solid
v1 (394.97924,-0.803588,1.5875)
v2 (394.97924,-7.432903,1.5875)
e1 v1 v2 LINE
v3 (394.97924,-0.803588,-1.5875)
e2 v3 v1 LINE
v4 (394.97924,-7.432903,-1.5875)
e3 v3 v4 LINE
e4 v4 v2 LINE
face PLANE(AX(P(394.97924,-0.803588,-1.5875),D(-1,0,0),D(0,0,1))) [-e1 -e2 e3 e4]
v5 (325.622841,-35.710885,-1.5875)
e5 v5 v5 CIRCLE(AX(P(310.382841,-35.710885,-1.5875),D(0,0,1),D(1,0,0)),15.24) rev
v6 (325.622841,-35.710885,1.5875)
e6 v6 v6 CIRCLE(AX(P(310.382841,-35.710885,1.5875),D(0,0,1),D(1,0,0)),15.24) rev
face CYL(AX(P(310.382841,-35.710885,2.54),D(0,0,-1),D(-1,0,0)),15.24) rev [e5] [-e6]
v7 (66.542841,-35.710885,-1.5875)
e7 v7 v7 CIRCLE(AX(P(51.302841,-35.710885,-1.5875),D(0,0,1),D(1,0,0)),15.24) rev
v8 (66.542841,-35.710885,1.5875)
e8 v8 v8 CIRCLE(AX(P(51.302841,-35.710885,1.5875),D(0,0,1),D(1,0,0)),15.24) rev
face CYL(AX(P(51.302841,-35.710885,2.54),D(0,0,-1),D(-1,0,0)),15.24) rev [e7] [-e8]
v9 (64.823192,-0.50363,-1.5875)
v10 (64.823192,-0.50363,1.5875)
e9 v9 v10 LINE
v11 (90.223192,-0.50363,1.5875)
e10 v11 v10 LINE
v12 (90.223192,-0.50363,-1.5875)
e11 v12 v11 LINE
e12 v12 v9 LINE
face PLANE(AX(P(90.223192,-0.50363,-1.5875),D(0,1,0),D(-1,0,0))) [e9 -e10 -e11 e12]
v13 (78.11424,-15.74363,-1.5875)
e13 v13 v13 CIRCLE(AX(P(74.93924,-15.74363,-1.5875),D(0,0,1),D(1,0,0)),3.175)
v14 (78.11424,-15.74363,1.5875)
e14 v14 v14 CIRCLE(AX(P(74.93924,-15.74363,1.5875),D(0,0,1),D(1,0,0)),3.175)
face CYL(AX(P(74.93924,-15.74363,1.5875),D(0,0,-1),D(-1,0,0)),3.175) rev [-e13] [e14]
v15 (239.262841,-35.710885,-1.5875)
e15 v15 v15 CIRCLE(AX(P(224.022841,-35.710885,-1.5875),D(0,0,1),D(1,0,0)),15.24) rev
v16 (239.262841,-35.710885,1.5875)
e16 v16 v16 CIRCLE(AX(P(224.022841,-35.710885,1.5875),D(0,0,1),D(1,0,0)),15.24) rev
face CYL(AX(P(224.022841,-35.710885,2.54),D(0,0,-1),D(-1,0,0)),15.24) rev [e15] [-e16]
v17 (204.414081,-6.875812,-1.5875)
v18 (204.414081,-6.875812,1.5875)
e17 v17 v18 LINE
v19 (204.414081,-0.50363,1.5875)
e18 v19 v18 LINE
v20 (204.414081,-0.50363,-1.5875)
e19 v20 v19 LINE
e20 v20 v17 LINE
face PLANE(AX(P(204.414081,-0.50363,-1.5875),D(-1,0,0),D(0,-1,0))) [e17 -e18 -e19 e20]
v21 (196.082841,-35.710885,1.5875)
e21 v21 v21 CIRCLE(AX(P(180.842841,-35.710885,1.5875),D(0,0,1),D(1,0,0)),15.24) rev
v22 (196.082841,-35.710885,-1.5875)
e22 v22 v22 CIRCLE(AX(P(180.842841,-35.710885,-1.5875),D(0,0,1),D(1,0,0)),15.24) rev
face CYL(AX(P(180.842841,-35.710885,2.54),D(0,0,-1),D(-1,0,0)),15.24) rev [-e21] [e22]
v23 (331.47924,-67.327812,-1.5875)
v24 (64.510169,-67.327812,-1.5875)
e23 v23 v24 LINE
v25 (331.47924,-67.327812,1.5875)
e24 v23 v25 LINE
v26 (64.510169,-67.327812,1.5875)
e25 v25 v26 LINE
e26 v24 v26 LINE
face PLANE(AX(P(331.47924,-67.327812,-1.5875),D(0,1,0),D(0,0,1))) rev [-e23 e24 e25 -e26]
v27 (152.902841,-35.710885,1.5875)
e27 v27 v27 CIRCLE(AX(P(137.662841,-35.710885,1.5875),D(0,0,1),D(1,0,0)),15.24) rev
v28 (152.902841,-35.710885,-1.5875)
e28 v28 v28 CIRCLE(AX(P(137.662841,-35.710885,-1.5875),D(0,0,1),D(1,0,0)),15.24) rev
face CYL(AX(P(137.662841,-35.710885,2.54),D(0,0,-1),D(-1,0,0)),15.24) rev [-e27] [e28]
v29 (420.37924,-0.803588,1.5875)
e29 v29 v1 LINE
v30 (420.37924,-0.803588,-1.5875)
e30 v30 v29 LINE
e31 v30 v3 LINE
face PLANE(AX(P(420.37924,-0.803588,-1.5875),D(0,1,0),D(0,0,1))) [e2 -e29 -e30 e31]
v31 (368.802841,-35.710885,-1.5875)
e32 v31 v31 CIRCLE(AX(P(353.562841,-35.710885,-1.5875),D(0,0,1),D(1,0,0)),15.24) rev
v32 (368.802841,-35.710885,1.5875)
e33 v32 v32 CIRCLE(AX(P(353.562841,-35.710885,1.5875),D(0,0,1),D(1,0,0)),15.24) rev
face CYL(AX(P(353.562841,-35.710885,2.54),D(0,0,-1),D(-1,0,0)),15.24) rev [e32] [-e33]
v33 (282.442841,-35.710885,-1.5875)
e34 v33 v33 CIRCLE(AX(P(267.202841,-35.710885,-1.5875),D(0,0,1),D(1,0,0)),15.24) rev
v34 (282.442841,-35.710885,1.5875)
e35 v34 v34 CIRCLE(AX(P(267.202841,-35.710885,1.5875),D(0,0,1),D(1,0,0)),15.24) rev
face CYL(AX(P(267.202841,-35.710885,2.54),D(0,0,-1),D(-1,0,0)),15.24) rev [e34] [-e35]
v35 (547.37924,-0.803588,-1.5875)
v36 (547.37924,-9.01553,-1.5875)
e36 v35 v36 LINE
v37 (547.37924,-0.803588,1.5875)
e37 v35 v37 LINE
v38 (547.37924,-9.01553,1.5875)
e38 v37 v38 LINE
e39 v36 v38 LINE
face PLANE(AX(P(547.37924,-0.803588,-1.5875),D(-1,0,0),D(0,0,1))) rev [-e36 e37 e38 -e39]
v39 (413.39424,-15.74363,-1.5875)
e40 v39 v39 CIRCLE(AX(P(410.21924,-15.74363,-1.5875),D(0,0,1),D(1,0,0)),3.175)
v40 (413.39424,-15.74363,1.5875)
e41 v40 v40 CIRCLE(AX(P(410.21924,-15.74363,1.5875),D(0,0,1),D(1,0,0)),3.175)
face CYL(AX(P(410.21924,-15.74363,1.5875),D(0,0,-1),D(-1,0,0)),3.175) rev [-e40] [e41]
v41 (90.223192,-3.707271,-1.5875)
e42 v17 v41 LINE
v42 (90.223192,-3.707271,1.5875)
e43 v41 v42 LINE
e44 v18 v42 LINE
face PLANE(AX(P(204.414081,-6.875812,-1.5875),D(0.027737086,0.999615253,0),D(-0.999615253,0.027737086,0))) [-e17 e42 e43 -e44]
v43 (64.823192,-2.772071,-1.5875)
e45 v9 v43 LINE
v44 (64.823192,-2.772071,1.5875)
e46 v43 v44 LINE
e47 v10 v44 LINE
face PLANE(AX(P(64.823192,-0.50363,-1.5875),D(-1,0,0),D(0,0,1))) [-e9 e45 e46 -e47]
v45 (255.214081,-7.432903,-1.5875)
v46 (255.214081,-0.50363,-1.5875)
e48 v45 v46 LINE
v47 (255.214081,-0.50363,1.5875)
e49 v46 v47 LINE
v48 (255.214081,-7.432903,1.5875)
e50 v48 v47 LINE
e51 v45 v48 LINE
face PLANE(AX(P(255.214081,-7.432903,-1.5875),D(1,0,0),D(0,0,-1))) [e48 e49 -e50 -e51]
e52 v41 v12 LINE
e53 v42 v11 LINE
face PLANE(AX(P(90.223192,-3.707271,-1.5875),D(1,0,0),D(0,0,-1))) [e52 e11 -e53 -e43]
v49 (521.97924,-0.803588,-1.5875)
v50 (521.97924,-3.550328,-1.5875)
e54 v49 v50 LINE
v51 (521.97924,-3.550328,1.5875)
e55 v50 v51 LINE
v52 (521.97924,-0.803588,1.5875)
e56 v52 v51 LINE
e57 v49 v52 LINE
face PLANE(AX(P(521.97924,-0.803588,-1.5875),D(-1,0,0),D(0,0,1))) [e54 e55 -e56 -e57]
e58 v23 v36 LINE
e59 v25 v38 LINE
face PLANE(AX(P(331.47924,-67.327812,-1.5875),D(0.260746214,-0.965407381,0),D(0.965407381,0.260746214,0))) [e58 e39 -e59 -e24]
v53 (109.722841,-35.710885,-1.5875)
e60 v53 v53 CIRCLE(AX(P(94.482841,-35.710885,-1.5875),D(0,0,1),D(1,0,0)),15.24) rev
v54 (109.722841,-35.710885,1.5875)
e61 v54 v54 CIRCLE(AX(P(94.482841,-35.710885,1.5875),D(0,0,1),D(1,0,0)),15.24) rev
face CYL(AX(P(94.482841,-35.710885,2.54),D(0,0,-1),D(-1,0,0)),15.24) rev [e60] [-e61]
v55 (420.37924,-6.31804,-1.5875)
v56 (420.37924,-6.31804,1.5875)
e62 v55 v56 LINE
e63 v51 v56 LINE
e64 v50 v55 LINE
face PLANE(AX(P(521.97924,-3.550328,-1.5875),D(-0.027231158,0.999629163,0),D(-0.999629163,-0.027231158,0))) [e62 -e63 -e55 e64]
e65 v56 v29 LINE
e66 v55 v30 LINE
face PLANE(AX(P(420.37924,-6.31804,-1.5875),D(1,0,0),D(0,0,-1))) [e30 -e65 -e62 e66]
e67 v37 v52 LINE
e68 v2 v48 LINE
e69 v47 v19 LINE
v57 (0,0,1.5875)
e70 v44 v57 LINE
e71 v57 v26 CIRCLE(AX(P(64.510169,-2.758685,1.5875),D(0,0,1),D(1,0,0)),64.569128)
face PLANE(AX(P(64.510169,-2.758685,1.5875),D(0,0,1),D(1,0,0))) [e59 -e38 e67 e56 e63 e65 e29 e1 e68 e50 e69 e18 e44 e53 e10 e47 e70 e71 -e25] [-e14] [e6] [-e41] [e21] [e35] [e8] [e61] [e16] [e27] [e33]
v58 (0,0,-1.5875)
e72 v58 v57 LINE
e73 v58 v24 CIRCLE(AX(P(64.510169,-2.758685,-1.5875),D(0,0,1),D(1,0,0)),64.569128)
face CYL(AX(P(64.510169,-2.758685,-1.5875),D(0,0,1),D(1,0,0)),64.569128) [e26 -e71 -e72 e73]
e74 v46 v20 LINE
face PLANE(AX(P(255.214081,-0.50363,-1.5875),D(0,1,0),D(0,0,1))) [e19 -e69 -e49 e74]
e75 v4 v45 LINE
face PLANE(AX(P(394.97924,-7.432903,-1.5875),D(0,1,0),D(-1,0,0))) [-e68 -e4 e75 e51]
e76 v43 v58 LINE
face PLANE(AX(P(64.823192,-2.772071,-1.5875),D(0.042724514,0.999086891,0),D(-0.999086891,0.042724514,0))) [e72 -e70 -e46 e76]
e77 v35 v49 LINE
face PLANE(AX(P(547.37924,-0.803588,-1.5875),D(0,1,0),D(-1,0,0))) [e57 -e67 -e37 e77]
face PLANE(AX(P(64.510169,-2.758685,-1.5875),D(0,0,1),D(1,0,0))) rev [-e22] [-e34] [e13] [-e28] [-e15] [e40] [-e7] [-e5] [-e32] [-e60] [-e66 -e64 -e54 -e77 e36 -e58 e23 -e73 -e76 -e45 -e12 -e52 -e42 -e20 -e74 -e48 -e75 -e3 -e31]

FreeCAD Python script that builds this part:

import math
import FreeCAD as App
import Part
import Sketcher
Q = App.Units.Quantity

doc = App.newDocument("Part")
params = doc.addObject("Spreadsheet::Sheet", "Params")
for row, (alias, value) in enumerate([
    ("sketch1_width", "1 in"),
    ("sketch1_width2", "2 in"),
    ("pad1_length", "0.0625 in"),
    ("pad1_length2", "0.0625 in"),
    ("sketch2_diameter", "0.25 in"),
    ("sketch3_diameter", "1.2 in"),
], start=1):
    params.set(f"A{row}", alias)
    params.set(f"B{row}", "=" + value)
    params.setAlias(f"B{row}", alias)

body = doc.addObject("PartDesign::Body", "Body")

# Sketch on XY plane
sketch1 = body.newObject("Sketcher::SketchObject", "Sketch")
sketch1.AttachmentSupport = (doc.getObject("XY_Plane"), [""])
sketch1.MapMode = "FlatFace"
sketch1.addGeometry(Part.LineSegment(App.Vector(331.5, -67.3, 0), App.Vector(547.4, -9, 0)), False)
sketch1.addGeometry(Part.LineSegment(App.Vector(547.4, -9, 0), App.Vector(547.4, -0.8, 0)), False)
sketch1.addGeometry(Part.LineSegment(App.Vector(547.4, -0.8, 0), App.Vector(522, -0.8, 0)), False)
sketch1.addGeometry(Part.LineSegment(App.Vector(522, -0.8, 0), App.Vector(522, -3.6, 0)), False)
sketch1.addGeometry(Part.LineSegment(App.Vector(522, -3.6, 0), App.Vector(420.4, -6.3, 0)), False)
sketch1.addGeometry(Part.LineSegment(App.Vector(420.4, -6.3, 0), App.Vector(420.4, -0.8, 0)), False)
sketch1.addGeometry(Part.LineSegment(App.Vector(420.4, -0.8, 0), App.Vector(395, -0.8, 0)), False)
sketch1.addGeometry(Part.LineSegment(App.Vector(395, -0.8, 0), App.Vector(395, -7.4, 0)), False)
sketch1.addGeometry(Part.LineSegment(App.Vector(395, -7.4, 0), App.Vector(255.2, -7.4, 0)), False)
sketch1.addGeometry(Part.LineSegment(App.Vector(255.2, -7.4, 0), App.Vector(255.2, -0.5, 0)), False)
sketch1.addGeometry(Part.LineSegment(App.Vector(255.2, -0.5, 0), App.Vector(204.4, -0.5, 0)), False)
sketch1.addGeometry(Part.LineSegment(App.Vector(204.4, -0.5, 0), App.Vector(204.4, -6.9, 0)), False)
sketch1.addGeometry(Part.LineSegment(App.Vector(204.4, -6.9, 0), App.Vector(90.2, -3.7, 0)), False)
sketch1.addGeometry(Part.LineSegment(App.Vector(90.2, -3.7, 0), App.Vector(90.2, -0.5, 0)), False)
sketch1.addGeometry(Part.LineSegment(App.Vector(90.2, -0.5, 0), App.Vector(64.8, -0.5, 0)), False)
sketch1.addGeometry(Part.LineSegment(App.Vector(64.8, -0.5, 0), App.Vector(64.8, -2.8, 0)), False)
sketch1.addGeometry(Part.LineSegment(App.Vector(64.8, -2.8, 0), App.Vector(0, 0, 0)), False)
sketch1.addGeometry(Part.ArcOfCircle(Part.Circle(App.Vector(64.5, -2.8, 0), App.Vector(0, 0, 1), 64.6), math.radians(178), math.radians(270)), False)
sketch1.addGeometry(Part.LineSegment(App.Vector(64.5, -67.3, 0), App.Vector(331.5, -67.3, 0)), False)
sketch1.addConstraint(Sketcher.Constraint("Coincident", 0, 2, 1, 1))
sketch1.addConstraint(Sketcher.Constraint("Coincident", 1, 2, 2, 1))
sketch1.addConstraint(Sketcher.Constraint("Coincident", 2, 2, 3, 1))
sketch1.addConstraint(Sketcher.Constraint("Coincident", 3, 2, 4, 1))
sketch1.addConstraint(Sketcher.Constraint("Coincident", 4, 2, 5, 1))
sketch1.addConstraint(Sketcher.Constraint("Coincident", 5, 2, 6, 1))
sketch1.addConstraint(Sketcher.Constraint("Coincident", 6, 2, 7, 1))
sketch1.addConstraint(Sketcher.Constraint("Coincident", 7, 2, 8, 1))
sketch1.addConstraint(Sketcher.Constraint("Coincident", 8, 2, 9, 1))
sketch1.addConstraint(Sketcher.Constraint("Coincident", 9, 2, 10, 1))
sketch1.addConstraint(Sketcher.Constraint("Coincident", 10, 2, 11, 1))
sketch1.addConstraint(Sketcher.Constraint("Coincident", 11, 2, 12, 1))
sketch1.addConstraint(Sketcher.Constraint("Coincident", 12, 2, 13, 1))
sketch1.addConstraint(Sketcher.Constraint("Coincident", 13, 2, 14, 1))
sketch1.addConstraint(Sketcher.Constraint("Coincident", 14, 2, 15, 1))
sketch1.addConstraint(Sketcher.Constraint("Coincident", 15, 2, 16, 1))
sketch1.addConstraint(Sketcher.Constraint("Coincident", 16, 2, 17, 1))
sketch1.addConstraint(Sketcher.Constraint("Tangent", 17, 2, 18, 1))
sketch1.addConstraint(Sketcher.Constraint("Coincident", 18, 2, 0, 1))
sketch1.addConstraint(Sketcher.Constraint("Vertical", 1))
sketch1.addConstraint(Sketcher.Constraint("Horizontal", 2))
sketch1.addConstraint(Sketcher.Constraint("Vertical", 3))
sketch1.addConstraint(Sketcher.Constraint("Vertical", 5))
sketch1.addConstraint(Sketcher.Constraint("Horizontal", 6))
sketch1.addConstraint(Sketcher.Constraint("Vertical", 7))
sketch1.addConstraint(Sketcher.Constraint("Horizontal", 8))
sketch1.addConstraint(Sketcher.Constraint("Vertical", 9))
sketch1.addConstraint(Sketcher.Constraint("Horizontal", 10))
sketch1.addConstraint(Sketcher.Constraint("Vertical", 11))
sketch1.addConstraint(Sketcher.Constraint("Vertical", 13))
sketch1.addConstraint(Sketcher.Constraint("Horizontal", 14))
sketch1.addConstraint(Sketcher.Constraint("Vertical", 15))
sketch1.addConstraint(Sketcher.Constraint("Horizontal", 18))
sketch1.addConstraint(Sketcher.Constraint("Coincident", 16, 2, -1, 1))
sketch1.addConstraint(Sketcher.Constraint("Horizontal", 2, 2, 5, 2))
sketch1.addConstraint(Sketcher.Constraint("Horizontal", 10, 2, 13, 2))
sketch1.addConstraint(Sketcher.Constraint("Equal", 2, 6))
sketch1.addConstraint(Sketcher.Constraint("Equal", 6, 14))
sketch1.addConstraint(Sketcher.Constraint("DistanceX", 2, 2, 2, 1, Q("1 in")))
sketch1.addConstraint(Sketcher.Constraint("DistanceX", 10, 2, 10, 1, Q("2 in")))
sketch1.addConstraint(Sketcher.Constraint("DistanceX", 4, 2, 3, 2, Q("4 in")))
sketch1.addConstraint(Sketcher.Constraint("DistanceX", 18, 2, 7, 2, Q("2.5 in")))
sketch1.addConstraint(Sketcher.Constraint("Radius", 17, 64.569128))
sketch1.addConstraint(Sketcher.Constraint("DistanceX", 8, 2, 8, 1, 139.76516))
sketch1.addConstraint(Sketcher.Constraint("DistanceX", 18, 1, 18, 2, 266.969071))
sketch1.addConstraint(Sketcher.Constraint("DistanceY", 3, 2, 3, 1, 2.74674))
sketch1.addConstraint(Sketcher.Constraint("DistanceY", 13, 1, 13, 2, 3.203641))
sketch1.addConstraint(Sketcher.Constraint("DistanceY", 15, 2, 15, 1, 2.268441))
sketch1.addConstraint(Sketcher.Constraint("Distance", 0, 223.63616))
sketch1.addConstraint(Sketcher.Constraint("Distance", 4, 101.637691))
sketch1.addConstraint(Sketcher.Constraint("Distance", 12, 114.23484))
sketch1.addConstraint(Sketcher.Constraint("DistanceY", 1, 1, 1, 2, 8.211942))
sketch1.addConstraint(Sketcher.Constraint("DistanceY", 7, 2, 7, 1, 6.629315))
sketch1.addConstraint(Sketcher.Constraint("DistanceY", 9, 1, 9, 2, 6.929273))
sketch1.addConstraint(Sketcher.Constraint("DistanceY", 11, 2, 11, 1, 6.372183))
sketch1.addConstraint(Sketcher.Constraint("DistanceX", -1, 1, 17, 3, 64.510169))
sketch1.setExpression("Constraints[38]", "Params.sketch1_width")
sketch1.setExpression("Constraints[39]", "Params.sketch1_width2")
pad1 = body.newObject("PartDesign::Pad", "Pad")
pad1.Profile = sketch1
pad1.Type = "TwoLengths"
pad1.setExpression("Length", "Params.pad1_length")
pad1.setExpression("Length2", "Params.pad1_length2")

# Sketch on XY plane
sketch2 = body.newObject("Sketcher::SketchObject", "Sketch001")
sketch2.AttachmentSupport = (doc.getObject("XY_Plane"), [""])
sketch2.MapMode = "FlatFace"
sketch2.addGeometry(Part.Circle(App.Vector(410.2, -15.7, 0), App.Vector(0, 0, 1), 3.2), False)
sketch2.addGeometry(Part.Circle(App.Vector(74.9, -15.7, 0), App.Vector(0, 0, 1), 3.2), False)
sketch2.addConstraint(Sketcher.Constraint("Equal", 0, 1))
sketch2.addConstraint(Sketcher.Constraint("Horizontal", 0, 3, 1, 3))
sketch2.addConstraint(Sketcher.Constraint("Diameter", 0, Q("0.25 in")))
sketch2.addConstraint(Sketcher.Constraint("DistanceX", 1, 3, 0, 3, Q("13.2 in")))
sketch2.addConstraint(Sketcher.Constraint("DistanceX", -1, 1, 0, 3, 410.21924))
sketch2.addConstraint(Sketcher.Constraint("DistanceY", 0, 3, -1, 1, 15.74363))
sketch2.setExpression("Constraints[2]", "Params.sketch2_diameter")
pocket1 = body.newObject("PartDesign::Pocket", "Pocket")
pocket1.Profile = sketch2
pocket1.Type = "ThroughAll"
pocket1.Midplane = True

# Sketch on XY plane
sketch3 = body.newObject("Sketcher::SketchObject", "Sketch002")
sketch3.AttachmentSupport = (doc.getObject("XY_Plane"), [""])
sketch3.MapMode = "FlatFace"
sketch3.addGeometry(Part.Circle(App.Vector(94, -36, 0), App.Vector(0, 0, 1), 15), False)
sketch3.addGeometry(Part.Circle(App.Vector(354, -36, 0), App.Vector(0, 0, 1), 15), False)
sketch3.addGeometry(Part.Circle(App.Vector(51, -36, 0), App.Vector(0, 0, 1), 15), False)
sketch3.addGeometry(Part.Circle(App.Vector(138, -36, 0), App.Vector(0, 0, 1), 15), False)
sketch3.addGeometry(Part.Circle(App.Vector(181, -36, 0), App.Vector(0, 0, 1), 15), False)
sketch3.addGeometry(Part.Circle(App.Vector(224, -36, 0), App.Vector(0, 0, 1), 15), False)
sketch3.addGeometry(Part.Circle(App.Vector(267, -36, 0), App.Vector(0, 0, 1), 15), False)
sketch3.addGeometry(Part.Circle(App.Vector(310, -36, 0), App.Vector(0, 0, 1), 15), False)
sketch3.addConstraint(Sketcher.Constraint("Equal", 0, 1))
sketch3.addConstraint(Sketcher.Constraint("Equal", 1, 2))
sketch3.addConstraint(Sketcher.Constraint("Equal", 2, 3))
sketch3.addConstraint(Sketcher.Constraint("Equal", 3, 4))
sketch3.addConstraint(Sketcher.Constraint("Equal", 4, 5))
sketch3.addConstraint(Sketcher.Constraint("Equal", 5, 6))
sketch3.addConstraint(Sketcher.Constraint("Equal", 6, 7))
sketch3.addConstraint(Sketcher.Constraint("Horizontal", 0, 3, 1, 3))
sketch3.addConstraint(Sketcher.Constraint("Horizontal", 1, 3, 2, 3))
sketch3.addConstraint(Sketcher.Constraint("Horizontal", 2, 3, 3, 3))
sketch3.addConstraint(Sketcher.Constraint("Horizontal", 3, 3, 4, 3))
sketch3.addConstraint(Sketcher.Constraint("Horizontal", 4, 3, 5, 3))
sketch3.addConstraint(Sketcher.Constraint("Horizontal", 5, 3, 6, 3))
sketch3.addConstraint(Sketcher.Constraint("Horizontal", 6, 3, 7, 3))
sketch3.addConstraint(Sketcher.Constraint("Diameter", 0, Q("1.2 in")))
sketch3.addConstraint(Sketcher.Constraint("DistanceX", 0, 3, 1, 3, Q("10.2 in")))
sketch3.addConstraint(Sketcher.Constraint("DistanceX", 2, 3, 0, 3, Q("1.7 in")))
sketch3.addConstraint(Sketcher.Constraint("DistanceX", 0, 3, 3, 3, Q("1.7 in")))
sketch3.addConstraint(Sketcher.Constraint("DistanceX", 3, 3, 4, 3, Q("1.7 in")))
sketch3.addConstraint(Sketcher.Constraint("DistanceX", 4, 3, 5, 3, Q("1.7 in")))
sketch3.addConstraint(Sketcher.Constraint("DistanceX", 5, 3, 6, 3, Q("1.7 in")))
sketch3.addConstraint(Sketcher.Constraint("DistanceX", 7, 3, 1, 3, Q("1.7 in")))
sketch3.addConstraint(Sketcher.Constraint("DistanceX", -1, 1, 0, 3, 94.482841))
sketch3.addConstraint(Sketcher.Constraint("DistanceY", 0, 3, -1, 1, 35.710885))
sketch3.setExpression("Constraints[14]", "Params.sketch3_diameter")
pocket2 = body.newObject("PartDesign::Pocket", "Pocket001")
pocket2.Profile = sketch3
pocket2.Type = "ThroughAll"
pocket2.Midplane = True

doc.recompute()
